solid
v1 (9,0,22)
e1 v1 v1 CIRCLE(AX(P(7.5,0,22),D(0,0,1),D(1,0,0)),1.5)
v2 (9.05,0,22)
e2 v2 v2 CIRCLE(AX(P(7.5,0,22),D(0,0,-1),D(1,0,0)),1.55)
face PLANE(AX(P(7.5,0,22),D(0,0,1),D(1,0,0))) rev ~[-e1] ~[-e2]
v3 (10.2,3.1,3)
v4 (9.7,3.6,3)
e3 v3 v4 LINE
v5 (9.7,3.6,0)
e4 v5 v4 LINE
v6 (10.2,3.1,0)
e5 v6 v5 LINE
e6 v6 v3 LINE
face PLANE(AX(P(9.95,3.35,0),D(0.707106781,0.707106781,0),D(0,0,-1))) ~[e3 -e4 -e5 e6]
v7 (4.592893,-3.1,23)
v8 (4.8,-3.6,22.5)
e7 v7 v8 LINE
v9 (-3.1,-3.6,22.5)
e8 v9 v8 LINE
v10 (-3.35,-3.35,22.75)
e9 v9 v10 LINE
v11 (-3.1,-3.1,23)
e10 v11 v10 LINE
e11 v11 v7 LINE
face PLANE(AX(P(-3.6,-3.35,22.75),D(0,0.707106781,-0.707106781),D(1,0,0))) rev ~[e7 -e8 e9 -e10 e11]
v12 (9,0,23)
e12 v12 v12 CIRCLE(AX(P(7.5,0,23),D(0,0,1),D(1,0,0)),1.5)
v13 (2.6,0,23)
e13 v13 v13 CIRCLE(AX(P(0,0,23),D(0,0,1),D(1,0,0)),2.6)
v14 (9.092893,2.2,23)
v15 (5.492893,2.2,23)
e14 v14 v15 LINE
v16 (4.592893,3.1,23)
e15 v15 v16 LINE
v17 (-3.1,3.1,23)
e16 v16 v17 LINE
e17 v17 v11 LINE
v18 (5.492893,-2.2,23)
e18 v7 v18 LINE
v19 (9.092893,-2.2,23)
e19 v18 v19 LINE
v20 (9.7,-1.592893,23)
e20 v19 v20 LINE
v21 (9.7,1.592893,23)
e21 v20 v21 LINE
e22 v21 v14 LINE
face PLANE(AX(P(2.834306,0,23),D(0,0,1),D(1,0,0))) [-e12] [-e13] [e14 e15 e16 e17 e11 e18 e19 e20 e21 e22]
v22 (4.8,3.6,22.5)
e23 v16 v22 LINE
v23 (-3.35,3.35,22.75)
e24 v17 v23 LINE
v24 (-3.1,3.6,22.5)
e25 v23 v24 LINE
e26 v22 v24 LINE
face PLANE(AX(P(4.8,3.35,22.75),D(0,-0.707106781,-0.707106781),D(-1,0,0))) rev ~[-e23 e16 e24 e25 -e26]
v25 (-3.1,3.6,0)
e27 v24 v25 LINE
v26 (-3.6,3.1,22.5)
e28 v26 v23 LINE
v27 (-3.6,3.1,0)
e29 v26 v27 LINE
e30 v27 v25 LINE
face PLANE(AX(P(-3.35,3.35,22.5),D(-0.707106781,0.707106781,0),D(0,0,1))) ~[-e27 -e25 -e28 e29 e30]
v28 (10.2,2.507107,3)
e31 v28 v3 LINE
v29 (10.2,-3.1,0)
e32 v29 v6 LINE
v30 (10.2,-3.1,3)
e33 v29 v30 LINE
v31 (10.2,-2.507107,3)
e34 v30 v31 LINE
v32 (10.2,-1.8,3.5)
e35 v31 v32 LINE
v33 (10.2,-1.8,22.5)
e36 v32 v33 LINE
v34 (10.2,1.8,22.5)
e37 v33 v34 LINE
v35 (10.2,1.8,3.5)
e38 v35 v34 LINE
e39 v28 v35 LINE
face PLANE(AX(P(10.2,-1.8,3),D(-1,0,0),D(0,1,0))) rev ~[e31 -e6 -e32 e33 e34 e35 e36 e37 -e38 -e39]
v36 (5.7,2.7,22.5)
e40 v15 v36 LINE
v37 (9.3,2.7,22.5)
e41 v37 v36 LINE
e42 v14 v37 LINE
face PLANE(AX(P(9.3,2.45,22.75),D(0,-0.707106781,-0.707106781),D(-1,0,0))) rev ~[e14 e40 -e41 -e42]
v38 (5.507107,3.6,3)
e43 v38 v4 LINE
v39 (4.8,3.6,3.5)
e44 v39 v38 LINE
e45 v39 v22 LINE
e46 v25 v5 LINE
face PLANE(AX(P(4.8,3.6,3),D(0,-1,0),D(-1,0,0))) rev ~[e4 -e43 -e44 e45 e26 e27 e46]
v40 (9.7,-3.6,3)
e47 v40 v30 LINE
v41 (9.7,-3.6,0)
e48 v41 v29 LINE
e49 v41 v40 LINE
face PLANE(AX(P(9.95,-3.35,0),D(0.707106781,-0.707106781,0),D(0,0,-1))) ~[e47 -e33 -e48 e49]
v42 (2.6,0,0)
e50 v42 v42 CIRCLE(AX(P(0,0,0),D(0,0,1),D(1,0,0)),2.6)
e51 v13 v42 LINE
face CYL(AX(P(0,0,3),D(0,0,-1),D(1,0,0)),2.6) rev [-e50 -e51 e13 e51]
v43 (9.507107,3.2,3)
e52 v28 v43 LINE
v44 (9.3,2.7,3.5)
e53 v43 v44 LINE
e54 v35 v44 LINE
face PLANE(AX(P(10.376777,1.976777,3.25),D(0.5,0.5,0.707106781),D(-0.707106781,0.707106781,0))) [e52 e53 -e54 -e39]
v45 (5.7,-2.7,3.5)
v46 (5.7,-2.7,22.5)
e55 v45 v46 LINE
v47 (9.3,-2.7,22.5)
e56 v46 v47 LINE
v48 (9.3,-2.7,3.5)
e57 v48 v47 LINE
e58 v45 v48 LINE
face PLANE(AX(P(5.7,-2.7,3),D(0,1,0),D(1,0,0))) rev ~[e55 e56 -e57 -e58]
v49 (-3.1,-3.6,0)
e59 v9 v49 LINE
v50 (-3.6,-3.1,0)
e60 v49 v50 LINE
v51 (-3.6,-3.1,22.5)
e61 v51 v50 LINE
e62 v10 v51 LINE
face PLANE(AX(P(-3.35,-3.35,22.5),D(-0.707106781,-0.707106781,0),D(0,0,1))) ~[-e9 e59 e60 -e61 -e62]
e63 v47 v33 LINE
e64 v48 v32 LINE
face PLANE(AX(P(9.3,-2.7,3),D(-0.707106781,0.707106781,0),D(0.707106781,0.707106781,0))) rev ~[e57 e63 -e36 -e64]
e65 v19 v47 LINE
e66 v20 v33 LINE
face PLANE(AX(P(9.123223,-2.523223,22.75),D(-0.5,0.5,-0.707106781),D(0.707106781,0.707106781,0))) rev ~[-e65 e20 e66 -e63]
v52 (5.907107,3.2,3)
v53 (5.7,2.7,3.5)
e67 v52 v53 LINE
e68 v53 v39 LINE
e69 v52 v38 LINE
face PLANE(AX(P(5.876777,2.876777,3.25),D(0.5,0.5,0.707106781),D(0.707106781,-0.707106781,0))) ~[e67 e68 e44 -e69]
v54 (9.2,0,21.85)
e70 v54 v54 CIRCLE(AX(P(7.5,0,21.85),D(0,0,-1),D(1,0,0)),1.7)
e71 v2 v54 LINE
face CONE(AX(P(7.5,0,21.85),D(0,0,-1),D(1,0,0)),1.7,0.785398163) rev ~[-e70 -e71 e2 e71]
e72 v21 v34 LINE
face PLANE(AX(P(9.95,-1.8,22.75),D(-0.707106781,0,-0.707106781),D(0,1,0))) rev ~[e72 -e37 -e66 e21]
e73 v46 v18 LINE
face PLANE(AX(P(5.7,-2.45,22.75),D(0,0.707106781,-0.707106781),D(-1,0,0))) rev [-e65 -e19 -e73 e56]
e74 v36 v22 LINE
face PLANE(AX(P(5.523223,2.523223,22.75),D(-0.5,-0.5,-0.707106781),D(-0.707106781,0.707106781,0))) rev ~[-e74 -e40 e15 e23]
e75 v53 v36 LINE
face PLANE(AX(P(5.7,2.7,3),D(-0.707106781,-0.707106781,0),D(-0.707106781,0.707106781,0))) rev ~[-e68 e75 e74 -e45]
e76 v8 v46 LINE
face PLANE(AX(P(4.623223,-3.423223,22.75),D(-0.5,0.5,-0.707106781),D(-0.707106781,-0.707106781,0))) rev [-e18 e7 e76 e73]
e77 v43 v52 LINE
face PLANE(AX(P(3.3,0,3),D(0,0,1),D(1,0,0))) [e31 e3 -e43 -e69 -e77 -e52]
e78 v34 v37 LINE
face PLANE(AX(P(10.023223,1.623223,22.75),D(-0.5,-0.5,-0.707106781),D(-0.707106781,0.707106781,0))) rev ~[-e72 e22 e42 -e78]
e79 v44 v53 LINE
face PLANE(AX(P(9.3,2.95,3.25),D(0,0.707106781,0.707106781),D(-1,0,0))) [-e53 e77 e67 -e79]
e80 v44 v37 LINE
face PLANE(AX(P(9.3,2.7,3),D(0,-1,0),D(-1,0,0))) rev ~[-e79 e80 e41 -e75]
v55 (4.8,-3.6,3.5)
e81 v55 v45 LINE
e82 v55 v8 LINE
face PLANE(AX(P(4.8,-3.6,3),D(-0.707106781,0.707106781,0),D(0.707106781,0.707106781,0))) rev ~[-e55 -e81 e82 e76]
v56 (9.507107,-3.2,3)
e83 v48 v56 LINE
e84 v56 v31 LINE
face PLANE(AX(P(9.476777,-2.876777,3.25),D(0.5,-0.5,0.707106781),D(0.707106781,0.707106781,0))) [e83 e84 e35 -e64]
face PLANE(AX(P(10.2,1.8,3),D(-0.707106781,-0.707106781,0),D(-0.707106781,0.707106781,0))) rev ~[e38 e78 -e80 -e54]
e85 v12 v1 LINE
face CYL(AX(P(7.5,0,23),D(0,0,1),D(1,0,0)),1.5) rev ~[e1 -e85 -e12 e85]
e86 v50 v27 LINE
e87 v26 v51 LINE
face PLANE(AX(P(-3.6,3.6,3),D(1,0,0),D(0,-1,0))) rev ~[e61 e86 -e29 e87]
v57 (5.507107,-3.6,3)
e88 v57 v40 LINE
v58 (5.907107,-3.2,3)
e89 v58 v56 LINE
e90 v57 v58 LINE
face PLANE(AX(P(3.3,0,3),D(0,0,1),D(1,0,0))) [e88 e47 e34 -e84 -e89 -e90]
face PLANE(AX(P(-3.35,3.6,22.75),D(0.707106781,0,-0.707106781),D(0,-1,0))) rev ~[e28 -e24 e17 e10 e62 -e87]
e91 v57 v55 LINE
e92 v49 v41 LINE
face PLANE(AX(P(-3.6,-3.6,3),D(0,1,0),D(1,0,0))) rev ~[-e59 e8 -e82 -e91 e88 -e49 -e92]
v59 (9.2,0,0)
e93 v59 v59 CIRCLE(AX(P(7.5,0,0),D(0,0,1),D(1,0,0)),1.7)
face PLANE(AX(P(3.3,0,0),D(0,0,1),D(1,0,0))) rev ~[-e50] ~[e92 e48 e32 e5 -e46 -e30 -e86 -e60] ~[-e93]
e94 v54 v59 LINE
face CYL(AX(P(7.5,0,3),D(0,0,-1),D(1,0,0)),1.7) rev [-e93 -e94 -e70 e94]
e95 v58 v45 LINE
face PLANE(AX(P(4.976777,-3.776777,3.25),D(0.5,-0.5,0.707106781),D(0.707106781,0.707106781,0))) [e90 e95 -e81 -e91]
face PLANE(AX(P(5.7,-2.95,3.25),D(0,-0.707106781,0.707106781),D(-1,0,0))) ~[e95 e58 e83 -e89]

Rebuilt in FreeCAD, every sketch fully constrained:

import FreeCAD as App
import Part
import Sketcher

V = App.Vector


def edges_at(feature, points):
    """Names of the edges that pass closest to the given points."""
    edges = feature.Shape.Edges
    near = lambda p: min(range(len(edges)), key=lambda i: edges[i].distToShape(Part.Vertex(*p))[0])
    return sorted({f"Edge{near(p) + 1}" for p in points})


def add_polygon(sketch, points):
    """Adds a closed chain of lines whose ends are joined by coincident constraints."""
    first, n = sketch.GeometryCount, len(points)
    for a, b in zip(points, points[1:] + points[:1]):
        sketch.addGeometry(Part.LineSegment(App.Vector(*a, 0), App.Vector(*b, 0)), False)
    for i in range(n):
        sketch.addConstraint(Sketcher.Constraint("Coincident", first + i, 2, first + (i + 1) % n, 1))

doc = App.newDocument("Part")
params = doc.addObject("Spreadsheet::Sheet", "Params")
for row, (alias, value) in enumerate([
    ("sketch1_diameter", "5.2 mm"),
    ("sketch1_diameter2", "3.4 mm"),
    ("sketch1_width", "13.8 mm"),
    ("sketch1_height", "7.2 mm"),
    ("pad1_length", "3 mm"),
    ("sketch2_diameter", "3.4 mm"),
    ("sketch2_diameter2", "5.2 mm"),
    ("sketch2_width", "3.6 mm"),
    ("sketch2_width2", "8.4 mm"),
    ("sketch2_height", "7.2 mm"),
    ("pad2_length", "20 mm"),
    ("chamfer_size", "0.5 mm"),
    ("chamfer2_size", "0.5 mm"),
    ("chamfer3_size", "0.5 mm"),
    ("sketch3_diameter", "4 mm"),
    ("sketch3_diameter2", "3 mm"),
    ("pad3_length", "1 mm"),
    ("chamfer4_size", "0.15 mm"),
    ("chamfer5_size", "0.5 mm"),
], start=1):
    params.set(f"A{row}", alias)
    params.set(f"B{row}", "=" + value)
    params.setAlias(f"B{row}", alias)

body = doc.addObject("PartDesign::Body", "Body")

# Sketch on XY plane
sketch1 = body.newObject("Sketcher::SketchObject", "Sketch")
sketch1.AttachmentSupport = (doc.getObject("XY_Plane"), [""])
sketch1.MapMode = "FlatFace"
add_polygon(sketch1, [(-3.6, 3.6), (-3.6, -3.6), (10.2, -3.6), (10.2, 3.6)])  # lines 0-3
sketch1.addGeometry(Part.Circle(V(0, 0, 0), V(0, 0, 1), 2.6), False)  # 4
sketch1.addGeometry(Part.Circle(V(7.5, 0, 0), V(0, 0, 1), 1.7), False)  # 5
sketch1.addConstraint([
    Sketcher.Constraint("Vertical", 0),
    Sketcher.Constraint("Horizontal", 1),
    Sketcher.Constraint("Vertical", 2),
    Sketcher.Constraint("Horizontal", 3),
    Sketcher.Constraint("Coincident", 4, 3, -1, 1),
    Sketcher.Constraint("PointOnObject", 5, 3, -1),
    Sketcher.Constraint("Diameter", 4, 5.2),
    Sketcher.Constraint("Diameter", 5, 3.4),
    Sketcher.Constraint("DistanceX", 1, 1, 1, 2, 13.8),
    Sketcher.Constraint("DistanceY", 0, 2, 0, 1, 7.2),
    Sketcher.Constraint("DistanceX", -1, 1, 5, 3, 7.5),
    Sketcher.Constraint("DistanceX", 0, 2, -1, 1, 3.6),
    Sketcher.Constraint("DistanceY", 0, 2, -1, 1, 3.6),
])
sketch1.setExpression("Constraints[10]", "Params.sketch1_diameter")
sketch1.setExpression("Constraints[11]", "Params.sketch1_diameter2")
sketch1.setExpression("Constraints[12]", "Params.sketch1_width")
sketch1.setExpression("Constraints[13]", "Params.sketch1_height")
pad1 = body.newObject("PartDesign::Pad", "Pad")
pad1.Profile = sketch1
pad1.setExpression("Length", "Params.pad1_length")

# Sketch on XY plane
sketch2 = body.newObject("Sketcher::SketchObject", "Sketch001")
sketch2.AttachmentSupport = (doc.getObject("XY_Plane"), [""])
sketch2.MapMode = "FlatFace"
sketch2.AttachmentOffset = App.Placement(V(0, 0, 3), App.Rotation())
add_polygon(sketch2, [(5.7, -2.7), (9.3, -2.7), (10.2, -1.8), (10.2, 1.8), (9.3, 2.7), (5.7, 2.7), (4.8, 3.6), (-3.6, 3.6), (-3.6, -3.6), (4.8, -3.6)])  # lines 0-9
sketch2.addGeometry(Part.Circle(V(7.5, 0, 0), V(0, 0, 1), 1.7), False)  # 10
sketch2.addGeometry(Part.Circle(V(0, 0, 0), V(0, 0, 1), 2.6), False)  # 11
sketch2.addConstraint([
    Sketcher.Constraint("Horizontal", 0),
    Sketcher.Constraint("Vertical", 2),
    Sketcher.Constraint("Horizontal", 4),
    Sketcher.Constraint("Horizontal", 6),
    Sketcher.Constraint("Vertical", 7),
    Sketcher.Constraint("Horizontal", 8),
    Sketcher.Constraint("Coincident", 11, 3, -1, 1),
    Sketcher.Constraint("Symmetric", 0, 2, 3, 2, -1),
    Sketcher.Constraint("Symmetric", 5, 2, 8, 2, -1),
    Sketcher.Constraint("PointOnObject", 10, 3, -1),
    Sketcher.Constraint("Perpendicular", 1, 3),
    Sketcher.Constraint("Parallel", 3, 5),
    Sketcher.Constraint("Perpendicular", 5, 9),
    Sketcher.Constraint("Vertical", 4, 2, 9, 2),
    Sketcher.Constraint("Equal", 4, 2),
    Sketcher.Constraint("Equal", 3, 5),
    Sketcher.Constraint("Diameter", 10, 3.4),
    Sketcher.Constraint("Diameter", 11, 5.2),
    Sketcher.Constraint("DistanceX", 0, 1, 0, 2, 3.6),
    Sketcher.Constraint("DistanceX", 6, 2, 6, 1, 8.4),
    Sketcher.Constraint("DistanceY", 7, 2, 7, 1, 7.2),
    Sketcher.Constraint("DistanceX", -1, 1, 10, 3, 7.5),
    Sketcher.Constraint("DistanceX", -1, 1, 0, 2, 9.3),
])
sketch2.setExpression("Constraints[26]", "Params.sketch2_diameter")
sketch2.setExpression("Constraints[27]", "Params.sketch2_diameter2")
sketch2.setExpression("Constraints[28]", "Params.sketch2_width")
sketch2.setExpression("Constraints[29]", "Params.sketch2_width2")
sketch2.setExpression("Constraints[30]", "Params.sketch2_height")
pad2 = body.newObject("PartDesign::Pad", "Pad001")
pad2.Profile = sketch2
pad2.setExpression("Length", "Params.pad2_length")
doc.recompute()

chamfer = body.newObject("PartDesign::Chamfer", "Chamfer")
chamfer.Base = (pad2, edges_at(pad2, [
    (5.25, -3.15, 3),
    (7.5, -2.7, 3),
    (9.75, -2.25, 3),
    (9.75, 2.25, 3),
    (7.5, 2.7, 3),
    (5.25, 3.15, 3),
]))
chamfer.setExpression("Size", "Params.chamfer_size")
doc.recompute()

chamfer2 = body.newObject("PartDesign::Chamfer", "Chamfer001")
chamfer2.Base = (chamfer, edges_at(chamfer, [
    (0.6, -3.6, 23),
    (-3.6, 0, 23),
    (0.6, 3.6, 23),
    (5.25, 3.15, 23),
    (7.5, 2.7, 23),
    (9.75, 2.25, 23),
    (10.2, 0, 23),
    (9.75, -2.25, 23),
    (7.5, -2.7, 23),
    (5.25, -3.15, 23),
]))
chamfer2.setExpression("Size", "Params.chamfer2_size")
doc.recompute()

chamfer3 = body.newObject("PartDesign::Chamfer", "Chamfer002")
chamfer3.Base = (chamfer2, edges_at(chamfer2, [(10.2, -3.6, 1.5), (10.2, 3.6, 1.5)]))
chamfer3.setExpression("Size", "Params.chamfer3_size")

# Sketch on XY plane
sketch3 = body.newObject("Sketcher::SketchObject", "Sketch002")
sketch3.AttachmentSupport = (doc.getObject("XY_Plane"), [""])
sketch3.MapMode = "FlatFace"
sketch3.AttachmentOffset = App.Placement(V(0, 0, 23), App.Rotation())
sketch3.addGeometry([
    Part.Circle(V(7.5, 0, 0), V(0, 0, 1), 2),
    Part.Circle(V(7.5, 0, 0), V(0, 0, 1), 1.5),
], False)
sketch3.addConstraint([
    Sketcher.Constraint("Coincident", 1, 3, 0, 3),
    Sketcher.Constraint("PointOnObject", 0, 3, -1),
    Sketcher.Constraint("Diameter", 0, 4.0),
    Sketcher.Constraint("Diameter", 1, 3.0),
    Sketcher.Constraint("DistanceX", -1, 1, 0, 3, 7.5),
])
sketch3.setExpression("Constraints[2]", "Params.sketch3_diameter")
sketch3.setExpression("Constraints[3]", "Params.sketch3_diameter2")
pad3 = body.newObject("PartDesign::Pad", "Pad002")
pad3.Profile = sketch3
pad3.setExpression("Length", "Params.pad3_length")
pad3.Reversed = True
doc.recompute()

chamfer4 = body.newObject("PartDesign::Chamfer", "Chamfer003")
chamfer4.Base = (pad3, edges_at(pad3, [(5.8, 0, 22)]))
chamfer4.setExpression("Size", "Params.chamfer4_size")
doc.recompute()

chamfer5 = body.newObject("PartDesign::Chamfer", "Chamfer004")
chamfer5.Base = (chamfer4, edges_at(chamfer4, [
    (-3.6, 3.6, 11.25),
    (-3.6, 3.6, 11.25),
    (-3.6, -3.6, 11.25),
    (-3.6, -3.6, 11.25),
]))
chamfer5.setExpression("Size", "Params.chamfer5_size")

doc.recompute()
